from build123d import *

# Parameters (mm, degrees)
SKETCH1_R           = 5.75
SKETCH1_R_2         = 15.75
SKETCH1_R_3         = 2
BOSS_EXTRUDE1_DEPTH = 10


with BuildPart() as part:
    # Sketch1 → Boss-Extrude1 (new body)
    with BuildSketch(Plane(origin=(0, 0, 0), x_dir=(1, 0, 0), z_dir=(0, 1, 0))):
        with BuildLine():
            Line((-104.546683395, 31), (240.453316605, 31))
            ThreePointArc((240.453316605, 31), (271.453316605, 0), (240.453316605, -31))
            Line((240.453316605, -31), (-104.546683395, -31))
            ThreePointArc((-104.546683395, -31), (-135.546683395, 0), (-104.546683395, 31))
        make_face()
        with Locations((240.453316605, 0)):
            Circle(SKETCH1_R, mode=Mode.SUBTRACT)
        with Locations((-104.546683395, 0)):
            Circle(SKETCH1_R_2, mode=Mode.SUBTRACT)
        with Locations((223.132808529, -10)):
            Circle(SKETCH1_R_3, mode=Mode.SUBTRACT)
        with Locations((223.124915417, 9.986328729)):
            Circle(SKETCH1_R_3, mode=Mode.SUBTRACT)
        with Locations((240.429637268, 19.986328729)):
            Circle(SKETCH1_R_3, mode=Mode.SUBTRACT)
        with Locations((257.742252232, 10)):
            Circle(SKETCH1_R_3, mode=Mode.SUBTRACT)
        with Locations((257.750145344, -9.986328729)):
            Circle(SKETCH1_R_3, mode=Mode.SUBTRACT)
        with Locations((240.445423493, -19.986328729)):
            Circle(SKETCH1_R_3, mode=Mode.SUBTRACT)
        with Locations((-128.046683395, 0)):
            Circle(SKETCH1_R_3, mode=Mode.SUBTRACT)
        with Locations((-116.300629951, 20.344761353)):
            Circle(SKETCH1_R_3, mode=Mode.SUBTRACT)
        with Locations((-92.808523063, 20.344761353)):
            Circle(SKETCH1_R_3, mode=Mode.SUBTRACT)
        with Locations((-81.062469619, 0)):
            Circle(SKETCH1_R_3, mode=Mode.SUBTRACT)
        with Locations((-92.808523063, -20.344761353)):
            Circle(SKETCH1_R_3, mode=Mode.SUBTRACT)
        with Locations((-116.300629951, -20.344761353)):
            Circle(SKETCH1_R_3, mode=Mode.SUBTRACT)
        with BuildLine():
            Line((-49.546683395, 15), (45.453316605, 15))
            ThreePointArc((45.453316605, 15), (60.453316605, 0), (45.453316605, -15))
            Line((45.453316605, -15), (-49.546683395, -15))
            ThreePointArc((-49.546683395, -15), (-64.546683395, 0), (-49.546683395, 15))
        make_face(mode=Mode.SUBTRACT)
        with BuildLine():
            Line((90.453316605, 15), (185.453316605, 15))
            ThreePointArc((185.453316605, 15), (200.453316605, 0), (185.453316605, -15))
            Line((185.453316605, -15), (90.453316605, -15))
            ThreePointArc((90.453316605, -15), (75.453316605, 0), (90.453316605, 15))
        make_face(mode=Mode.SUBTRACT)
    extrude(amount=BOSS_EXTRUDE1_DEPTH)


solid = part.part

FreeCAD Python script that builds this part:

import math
import FreeCAD as App
import Part
import Sketcher

doc = App.newDocument("Part")
body = doc.addObject("PartDesign::Body", "Body")

# Sketch on XZ plane
sketch1 = body.newObject("Sketcher::SketchObject", "Sketch")
sketch1.AttachmentSupport = (doc.getObject("XZ_Plane"), [""])
sketch1.MapMode = "FlatFace"
sketch1.addGeometry(Part.LineSegment(App.Vector(240.453317, -31, 0), App.Vector(-104.546683, -31, 0)), False)
sketch1.addGeometry(Part.ArcOfCircle(Part.Circle(App.Vector(-104.546683, 0, 0), App.Vector(0, 0, 1), 31), math.radians(90), math.radians(270)), False)
sketch1.addGeometry(Part.LineSegment(App.Vector(-104.546683, 31, 0), App.Vector(240.453317, 31, 0)), False)
sketch1.addGeometry(Part.ArcOfCircle(Part.Circle(App.Vector(240.453317, 0, 0), App.Vector(0, 0, 1), 31), math.radians(-90), math.radians(90)), False)
sketch1.addGeometry(Part.Circle(App.Vector(240.445423, 19.986329, 0), App.Vector(0, 0, 1), 2), False)
sketch1.addGeometry(Part.Circle(App.Vector(257.750145, 9.986329, 0), App.Vector(0, 0, 1), 2), False)
sketch1.addGeometry(Part.Circle(App.Vector(223.132809, 10, 0), App.Vector(0, 0, 1), 2), False)
sketch1.addGeometry(Part.Circle(App.Vector(-92.808523, 20.344761, 0), App.Vector(0, 0, 1), 2), False)
sketch1.addGeometry(Part.Circle(App.Vector(-116.30063, 20.344761, 0), App.Vector(0, 0, 1), 2), False)
sketch1.addGeometry(Part.Circle(App.Vector(240.453317, 0, 0), App.Vector(0, 0, 1), 5.75), False)
sketch1.addGeometry(Part.Circle(App.Vector(257.742252, -10, 0), App.Vector(0, 0, 1), 2), False)
sketch1.addGeometry(Part.Circle(App.Vector(223.124915, -9.986329, 0), App.Vector(0, 0, 1), 2), False)
sketch1.addGeometry(Part.LineSegment(App.Vector(90.453317, -15, 0), App.Vector(185.453317, -15, 0)), False)
sketch1.addGeometry(Part.ArcOfCircle(Part.Circle(App.Vector(185.453317, 0, 0), App.Vector(0, 0, 1), 15), math.radians(-90), math.radians(90)), False)
sketch1.addGeometry(Part.LineSegment(App.Vector(185.453317, 15, 0), App.Vector(90.453317, 15, 0)), False)
sketch1.addGeometry(Part.ArcOfCircle(Part.Circle(App.Vector(90.453317, 0, 0), App.Vector(0, 0, 1), 15), math.radians(90), math.radians(270)), False)
sketch1.addGeometry(Part.Circle(App.Vector(240.429637, -19.986329, 0), App.Vector(0, 0, 1), 2), False)
sketch1.addGeometry(Part.LineSegment(App.Vector(-49.546683, -15, 0), App.Vector(45.453317, -15, 0)), False)
sketch1.addGeometry(Part.ArcOfCircle(Part.Circle(App.Vector(45.453317, 0, 0), App.Vector(0, 0, 1), 15), math.radians(-90), math.radians(90)), False)
sketch1.addGeometry(Part.LineSegment(App.Vector(45.453317, 15, 0), App.Vector(-49.546683, 15, 0)), False)
sketch1.addGeometry(Part.ArcOfCircle(Part.Circle(App.Vector(-49.546683, 0, 0), App.Vector(0, 0, 1), 15), math.radians(90), math.radians(270)), False)
sketch1.addGeometry(Part.Circle(App.Vector(-81.06247, 0, 0), App.Vector(0, 0, 1), 2), False)
sketch1.addGeometry(Part.Circle(App.Vector(-104.546683, 0, 0), App.Vector(0, 0, 1), 15.75), False)
sketch1.addGeometry(Part.Circle(App.Vector(-128.046683, 0, 0), App.Vector(0, 0, 1), 2), False)
sketch1.addGeometry(Part.Circle(App.Vector(-92.808523, -20.344761, 0), App.Vector(0, 0, 1), 2), False)
sketch1.addGeometry(Part.Circle(App.Vector(-116.30063, -20.344761, 0), App.Vector(0, 0, 1), 2), False)
sketch1.addConstraint(Sketcher.Constraint("Tangent", 0, 2, 1, 2))
sketch1.addConstraint(Sketcher.Constraint("Tangent", 1, 1, 2, 1))
sketch1.addConstraint(Sketcher.Constraint("Tangent", 2, 2, 3, 2))
sketch1.addConstraint(Sketcher.Constraint("Tangent", 3, 1, 0, 1))
sketch1.addConstraint(Sketcher.Constraint("Tangent", 12, 2, 13, 1))
sketch1.addConstraint(Sketcher.Constraint("Tangent", 13, 2, 14, 1))
sketch1.addConstraint(Sketcher.Constraint("Tangent", 14, 2, 15, 1))
sketch1.addConstraint(Sketcher.Constraint("Tangent", 15, 2, 12, 1))
sketch1.addConstraint(Sketcher.Constraint("Tangent", 17, 2, 18, 1))
sketch1.addConstraint(Sketcher.Constraint("Tangent", 18, 2, 19, 1))
sketch1.addConstraint(Sketcher.Constraint("Tangent", 19, 2, 20, 1))
sketch1.addConstraint(Sketcher.Constraint("Tangent", 20, 2, 17, 1))
sketch1.addConstraint(Sketcher.Constraint("Horizontal", 0))
sketch1.addConstraint(Sketcher.Constraint("Horizontal", 2))
sketch1.addConstraint(Sketcher.Constraint("Horizontal", 12))
sketch1.addConstraint(Sketcher.Constraint("Horizontal", 14))
sketch1.addConstraint(Sketcher.Constraint("Horizontal", 17))
sketch1.addConstraint(Sketcher.Constraint("Horizontal", 19))
sketch1.addConstraint(Sketcher.Constraint("Coincident", 9, 3, 3, 3))
sketch1.addConstraint(Sketcher.Constraint("Coincident", 22, 3, 1, 3))
sketch1.addConstraint(Sketcher.Constraint("Equal", 4, 5))
sketch1.addConstraint(Sketcher.Constraint("Equal", 5, 6))
sketch1.addConstraint(Sketcher.Constraint("Equal", 6, 7))
sketch1.addConstraint(Sketcher.Constraint("Equal", 7, 8))
sketch1.addConstraint(Sketcher.Constraint("Equal", 8, 10))
sketch1.addConstraint(Sketcher.Constraint("Equal", 10, 11))
sketch1.addConstraint(Sketcher.Constraint("Equal", 11, 16))
sketch1.addConstraint(Sketcher.Constraint("Equal", 15, 18))
sketch1.addConstraint(Sketcher.Constraint("Equal", 16, 21))
sketch1.addConstraint(Sketcher.Constraint("Equal", 21, 23))
sketch1.addConstraint(Sketcher.Constraint("Equal", 23, 24))
sketch1.addConstraint(Sketcher.Constraint("Equal", 24, 25))
sketch1.addConstraint(Sketcher.Constraint("Symmetric", 7, 3, 24, 3, -1))
sketch1.addConstraint(Sketcher.Constraint("Symmetric", 8, 3, 25, 3, -1))
sketch1.addConstraint(Sketcher.Constraint("PointOnObject", 1, 3, -1))
sketch1.addConstraint(Sketcher.Constraint("PointOnObject", 13, 3, -1))
sketch1.addConstraint(Sketcher.Constraint("PointOnObject", 18, 3, -1))
sketch1.addConstraint(Sketcher.Constraint("PointOnObject", 21, 3, -1))
sketch1.addConstraint(Sketcher.Constraint("PointOnObject", 23, 3, -1))
sketch1.addConstraint(Sketcher.Constraint("Horizontal", 7, 3, 8, 3))
sketch1.addConstraint(Sketcher.Constraint("Equal", 14, 17))
sketch1.addConstraint(Sketcher.Constraint("Diameter", 4, 4.0))
sketch1.addConstraint(Sketcher.Constraint("Radius", 1, 31.0))
sketch1.addConstraint(Sketcher.Constraint("Radius", 13, 15.0))
sketch1.addConstraint(Sketcher.Constraint("Diameter", 9, 11.5))
sketch1.addConstraint(Sketcher.Constraint("Diameter", 22, 31.5))
sketch1.addConstraint(Sketcher.Constraint("DistanceX", 0, 2, 0, 1, 345.0))
sketch1.addConstraint(Sketcher.Constraint("DistanceX", 12, 1, 12, 2, 95.0))
sketch1.addConstraint(Sketcher.Constraint("DistanceY", -1, 1, 6, 3, 10.0))
sketch1.addConstraint(Sketcher.Constraint("DistanceY", 10, 3, -1, 1, 10.0))
sketch1.addConstraint(Sketcher.Constraint("DistanceY", 5, 3, 4, 3, 10.0))
sketch1.addConstraint(Sketcher.Constraint("DistanceX", 13, 3, 3, 3, 55.0))
sketch1.addConstraint(Sketcher.Constraint("DistanceY", 16, 3, 11, 3, 10.0))
sketch1.addConstraint(Sketcher.Constraint("DistanceX", 18, 3, 15, 3, 45.0))
sketch1.addConstraint(Sketcher.Constraint("DistanceX", 23, 3, 1, 3, 23.5))
sketch1.addConstraint(Sketcher.Constraint("DistanceX", 11, 3, 3, 3, 17.328401))
sketch1.addConstraint(Sketcher.Constraint("DistanceY", -1, 1, 4, 3, 19.986329))
sketch1.addConstraint(Sketcher.Constraint("DistanceX", -1, 1, 6, 3, 223.132809))
sketch1.addConstraint(Sketcher.Constraint("DistanceY", -1, 1, 7, 3, 20.344761))
sketch1.addConstraint(Sketcher.Constraint("DistanceX", 8, 3, -1, 1, 116.30063))
sketch1.addConstraint(Sketcher.Constraint("DistanceY", 11, 3, -1, 1, 9.986329))
sketch1.addConstraint(Sketcher.Constraint("DistanceX", 21, 3, -1, 1, 81.06247))
sketch1.addConstraint(Sketcher.Constraint("DistanceX", 3, 3, 5, 3, 17.296829))
sketch1.addConstraint(Sketcher.Constraint("DistanceX", 4, 3, 5, 3, 17.304722))
sketch1.addConstraint(Sketcher.Constraint("DistanceX", 6, 3, 3, 3, 17.320508))
sketch1.addConstraint(Sketcher.Constraint("DistanceX", 1, 3, 7, 3, 11.73816))
sketch1.addConstraint(Sketcher.Constraint("DistanceX", 4, 3, 10, 3, 17.296829))
sketch1.addConstraint(Sketcher.Constraint("DistanceX", 11, 3, 16, 3, 17.304722))
pad1 = body.newObject("PartDesign::Pad", "Pad")
pad1.Profile = sketch1
pad1.Length = 10
pad1.Reversed = True

doc.recompute()
